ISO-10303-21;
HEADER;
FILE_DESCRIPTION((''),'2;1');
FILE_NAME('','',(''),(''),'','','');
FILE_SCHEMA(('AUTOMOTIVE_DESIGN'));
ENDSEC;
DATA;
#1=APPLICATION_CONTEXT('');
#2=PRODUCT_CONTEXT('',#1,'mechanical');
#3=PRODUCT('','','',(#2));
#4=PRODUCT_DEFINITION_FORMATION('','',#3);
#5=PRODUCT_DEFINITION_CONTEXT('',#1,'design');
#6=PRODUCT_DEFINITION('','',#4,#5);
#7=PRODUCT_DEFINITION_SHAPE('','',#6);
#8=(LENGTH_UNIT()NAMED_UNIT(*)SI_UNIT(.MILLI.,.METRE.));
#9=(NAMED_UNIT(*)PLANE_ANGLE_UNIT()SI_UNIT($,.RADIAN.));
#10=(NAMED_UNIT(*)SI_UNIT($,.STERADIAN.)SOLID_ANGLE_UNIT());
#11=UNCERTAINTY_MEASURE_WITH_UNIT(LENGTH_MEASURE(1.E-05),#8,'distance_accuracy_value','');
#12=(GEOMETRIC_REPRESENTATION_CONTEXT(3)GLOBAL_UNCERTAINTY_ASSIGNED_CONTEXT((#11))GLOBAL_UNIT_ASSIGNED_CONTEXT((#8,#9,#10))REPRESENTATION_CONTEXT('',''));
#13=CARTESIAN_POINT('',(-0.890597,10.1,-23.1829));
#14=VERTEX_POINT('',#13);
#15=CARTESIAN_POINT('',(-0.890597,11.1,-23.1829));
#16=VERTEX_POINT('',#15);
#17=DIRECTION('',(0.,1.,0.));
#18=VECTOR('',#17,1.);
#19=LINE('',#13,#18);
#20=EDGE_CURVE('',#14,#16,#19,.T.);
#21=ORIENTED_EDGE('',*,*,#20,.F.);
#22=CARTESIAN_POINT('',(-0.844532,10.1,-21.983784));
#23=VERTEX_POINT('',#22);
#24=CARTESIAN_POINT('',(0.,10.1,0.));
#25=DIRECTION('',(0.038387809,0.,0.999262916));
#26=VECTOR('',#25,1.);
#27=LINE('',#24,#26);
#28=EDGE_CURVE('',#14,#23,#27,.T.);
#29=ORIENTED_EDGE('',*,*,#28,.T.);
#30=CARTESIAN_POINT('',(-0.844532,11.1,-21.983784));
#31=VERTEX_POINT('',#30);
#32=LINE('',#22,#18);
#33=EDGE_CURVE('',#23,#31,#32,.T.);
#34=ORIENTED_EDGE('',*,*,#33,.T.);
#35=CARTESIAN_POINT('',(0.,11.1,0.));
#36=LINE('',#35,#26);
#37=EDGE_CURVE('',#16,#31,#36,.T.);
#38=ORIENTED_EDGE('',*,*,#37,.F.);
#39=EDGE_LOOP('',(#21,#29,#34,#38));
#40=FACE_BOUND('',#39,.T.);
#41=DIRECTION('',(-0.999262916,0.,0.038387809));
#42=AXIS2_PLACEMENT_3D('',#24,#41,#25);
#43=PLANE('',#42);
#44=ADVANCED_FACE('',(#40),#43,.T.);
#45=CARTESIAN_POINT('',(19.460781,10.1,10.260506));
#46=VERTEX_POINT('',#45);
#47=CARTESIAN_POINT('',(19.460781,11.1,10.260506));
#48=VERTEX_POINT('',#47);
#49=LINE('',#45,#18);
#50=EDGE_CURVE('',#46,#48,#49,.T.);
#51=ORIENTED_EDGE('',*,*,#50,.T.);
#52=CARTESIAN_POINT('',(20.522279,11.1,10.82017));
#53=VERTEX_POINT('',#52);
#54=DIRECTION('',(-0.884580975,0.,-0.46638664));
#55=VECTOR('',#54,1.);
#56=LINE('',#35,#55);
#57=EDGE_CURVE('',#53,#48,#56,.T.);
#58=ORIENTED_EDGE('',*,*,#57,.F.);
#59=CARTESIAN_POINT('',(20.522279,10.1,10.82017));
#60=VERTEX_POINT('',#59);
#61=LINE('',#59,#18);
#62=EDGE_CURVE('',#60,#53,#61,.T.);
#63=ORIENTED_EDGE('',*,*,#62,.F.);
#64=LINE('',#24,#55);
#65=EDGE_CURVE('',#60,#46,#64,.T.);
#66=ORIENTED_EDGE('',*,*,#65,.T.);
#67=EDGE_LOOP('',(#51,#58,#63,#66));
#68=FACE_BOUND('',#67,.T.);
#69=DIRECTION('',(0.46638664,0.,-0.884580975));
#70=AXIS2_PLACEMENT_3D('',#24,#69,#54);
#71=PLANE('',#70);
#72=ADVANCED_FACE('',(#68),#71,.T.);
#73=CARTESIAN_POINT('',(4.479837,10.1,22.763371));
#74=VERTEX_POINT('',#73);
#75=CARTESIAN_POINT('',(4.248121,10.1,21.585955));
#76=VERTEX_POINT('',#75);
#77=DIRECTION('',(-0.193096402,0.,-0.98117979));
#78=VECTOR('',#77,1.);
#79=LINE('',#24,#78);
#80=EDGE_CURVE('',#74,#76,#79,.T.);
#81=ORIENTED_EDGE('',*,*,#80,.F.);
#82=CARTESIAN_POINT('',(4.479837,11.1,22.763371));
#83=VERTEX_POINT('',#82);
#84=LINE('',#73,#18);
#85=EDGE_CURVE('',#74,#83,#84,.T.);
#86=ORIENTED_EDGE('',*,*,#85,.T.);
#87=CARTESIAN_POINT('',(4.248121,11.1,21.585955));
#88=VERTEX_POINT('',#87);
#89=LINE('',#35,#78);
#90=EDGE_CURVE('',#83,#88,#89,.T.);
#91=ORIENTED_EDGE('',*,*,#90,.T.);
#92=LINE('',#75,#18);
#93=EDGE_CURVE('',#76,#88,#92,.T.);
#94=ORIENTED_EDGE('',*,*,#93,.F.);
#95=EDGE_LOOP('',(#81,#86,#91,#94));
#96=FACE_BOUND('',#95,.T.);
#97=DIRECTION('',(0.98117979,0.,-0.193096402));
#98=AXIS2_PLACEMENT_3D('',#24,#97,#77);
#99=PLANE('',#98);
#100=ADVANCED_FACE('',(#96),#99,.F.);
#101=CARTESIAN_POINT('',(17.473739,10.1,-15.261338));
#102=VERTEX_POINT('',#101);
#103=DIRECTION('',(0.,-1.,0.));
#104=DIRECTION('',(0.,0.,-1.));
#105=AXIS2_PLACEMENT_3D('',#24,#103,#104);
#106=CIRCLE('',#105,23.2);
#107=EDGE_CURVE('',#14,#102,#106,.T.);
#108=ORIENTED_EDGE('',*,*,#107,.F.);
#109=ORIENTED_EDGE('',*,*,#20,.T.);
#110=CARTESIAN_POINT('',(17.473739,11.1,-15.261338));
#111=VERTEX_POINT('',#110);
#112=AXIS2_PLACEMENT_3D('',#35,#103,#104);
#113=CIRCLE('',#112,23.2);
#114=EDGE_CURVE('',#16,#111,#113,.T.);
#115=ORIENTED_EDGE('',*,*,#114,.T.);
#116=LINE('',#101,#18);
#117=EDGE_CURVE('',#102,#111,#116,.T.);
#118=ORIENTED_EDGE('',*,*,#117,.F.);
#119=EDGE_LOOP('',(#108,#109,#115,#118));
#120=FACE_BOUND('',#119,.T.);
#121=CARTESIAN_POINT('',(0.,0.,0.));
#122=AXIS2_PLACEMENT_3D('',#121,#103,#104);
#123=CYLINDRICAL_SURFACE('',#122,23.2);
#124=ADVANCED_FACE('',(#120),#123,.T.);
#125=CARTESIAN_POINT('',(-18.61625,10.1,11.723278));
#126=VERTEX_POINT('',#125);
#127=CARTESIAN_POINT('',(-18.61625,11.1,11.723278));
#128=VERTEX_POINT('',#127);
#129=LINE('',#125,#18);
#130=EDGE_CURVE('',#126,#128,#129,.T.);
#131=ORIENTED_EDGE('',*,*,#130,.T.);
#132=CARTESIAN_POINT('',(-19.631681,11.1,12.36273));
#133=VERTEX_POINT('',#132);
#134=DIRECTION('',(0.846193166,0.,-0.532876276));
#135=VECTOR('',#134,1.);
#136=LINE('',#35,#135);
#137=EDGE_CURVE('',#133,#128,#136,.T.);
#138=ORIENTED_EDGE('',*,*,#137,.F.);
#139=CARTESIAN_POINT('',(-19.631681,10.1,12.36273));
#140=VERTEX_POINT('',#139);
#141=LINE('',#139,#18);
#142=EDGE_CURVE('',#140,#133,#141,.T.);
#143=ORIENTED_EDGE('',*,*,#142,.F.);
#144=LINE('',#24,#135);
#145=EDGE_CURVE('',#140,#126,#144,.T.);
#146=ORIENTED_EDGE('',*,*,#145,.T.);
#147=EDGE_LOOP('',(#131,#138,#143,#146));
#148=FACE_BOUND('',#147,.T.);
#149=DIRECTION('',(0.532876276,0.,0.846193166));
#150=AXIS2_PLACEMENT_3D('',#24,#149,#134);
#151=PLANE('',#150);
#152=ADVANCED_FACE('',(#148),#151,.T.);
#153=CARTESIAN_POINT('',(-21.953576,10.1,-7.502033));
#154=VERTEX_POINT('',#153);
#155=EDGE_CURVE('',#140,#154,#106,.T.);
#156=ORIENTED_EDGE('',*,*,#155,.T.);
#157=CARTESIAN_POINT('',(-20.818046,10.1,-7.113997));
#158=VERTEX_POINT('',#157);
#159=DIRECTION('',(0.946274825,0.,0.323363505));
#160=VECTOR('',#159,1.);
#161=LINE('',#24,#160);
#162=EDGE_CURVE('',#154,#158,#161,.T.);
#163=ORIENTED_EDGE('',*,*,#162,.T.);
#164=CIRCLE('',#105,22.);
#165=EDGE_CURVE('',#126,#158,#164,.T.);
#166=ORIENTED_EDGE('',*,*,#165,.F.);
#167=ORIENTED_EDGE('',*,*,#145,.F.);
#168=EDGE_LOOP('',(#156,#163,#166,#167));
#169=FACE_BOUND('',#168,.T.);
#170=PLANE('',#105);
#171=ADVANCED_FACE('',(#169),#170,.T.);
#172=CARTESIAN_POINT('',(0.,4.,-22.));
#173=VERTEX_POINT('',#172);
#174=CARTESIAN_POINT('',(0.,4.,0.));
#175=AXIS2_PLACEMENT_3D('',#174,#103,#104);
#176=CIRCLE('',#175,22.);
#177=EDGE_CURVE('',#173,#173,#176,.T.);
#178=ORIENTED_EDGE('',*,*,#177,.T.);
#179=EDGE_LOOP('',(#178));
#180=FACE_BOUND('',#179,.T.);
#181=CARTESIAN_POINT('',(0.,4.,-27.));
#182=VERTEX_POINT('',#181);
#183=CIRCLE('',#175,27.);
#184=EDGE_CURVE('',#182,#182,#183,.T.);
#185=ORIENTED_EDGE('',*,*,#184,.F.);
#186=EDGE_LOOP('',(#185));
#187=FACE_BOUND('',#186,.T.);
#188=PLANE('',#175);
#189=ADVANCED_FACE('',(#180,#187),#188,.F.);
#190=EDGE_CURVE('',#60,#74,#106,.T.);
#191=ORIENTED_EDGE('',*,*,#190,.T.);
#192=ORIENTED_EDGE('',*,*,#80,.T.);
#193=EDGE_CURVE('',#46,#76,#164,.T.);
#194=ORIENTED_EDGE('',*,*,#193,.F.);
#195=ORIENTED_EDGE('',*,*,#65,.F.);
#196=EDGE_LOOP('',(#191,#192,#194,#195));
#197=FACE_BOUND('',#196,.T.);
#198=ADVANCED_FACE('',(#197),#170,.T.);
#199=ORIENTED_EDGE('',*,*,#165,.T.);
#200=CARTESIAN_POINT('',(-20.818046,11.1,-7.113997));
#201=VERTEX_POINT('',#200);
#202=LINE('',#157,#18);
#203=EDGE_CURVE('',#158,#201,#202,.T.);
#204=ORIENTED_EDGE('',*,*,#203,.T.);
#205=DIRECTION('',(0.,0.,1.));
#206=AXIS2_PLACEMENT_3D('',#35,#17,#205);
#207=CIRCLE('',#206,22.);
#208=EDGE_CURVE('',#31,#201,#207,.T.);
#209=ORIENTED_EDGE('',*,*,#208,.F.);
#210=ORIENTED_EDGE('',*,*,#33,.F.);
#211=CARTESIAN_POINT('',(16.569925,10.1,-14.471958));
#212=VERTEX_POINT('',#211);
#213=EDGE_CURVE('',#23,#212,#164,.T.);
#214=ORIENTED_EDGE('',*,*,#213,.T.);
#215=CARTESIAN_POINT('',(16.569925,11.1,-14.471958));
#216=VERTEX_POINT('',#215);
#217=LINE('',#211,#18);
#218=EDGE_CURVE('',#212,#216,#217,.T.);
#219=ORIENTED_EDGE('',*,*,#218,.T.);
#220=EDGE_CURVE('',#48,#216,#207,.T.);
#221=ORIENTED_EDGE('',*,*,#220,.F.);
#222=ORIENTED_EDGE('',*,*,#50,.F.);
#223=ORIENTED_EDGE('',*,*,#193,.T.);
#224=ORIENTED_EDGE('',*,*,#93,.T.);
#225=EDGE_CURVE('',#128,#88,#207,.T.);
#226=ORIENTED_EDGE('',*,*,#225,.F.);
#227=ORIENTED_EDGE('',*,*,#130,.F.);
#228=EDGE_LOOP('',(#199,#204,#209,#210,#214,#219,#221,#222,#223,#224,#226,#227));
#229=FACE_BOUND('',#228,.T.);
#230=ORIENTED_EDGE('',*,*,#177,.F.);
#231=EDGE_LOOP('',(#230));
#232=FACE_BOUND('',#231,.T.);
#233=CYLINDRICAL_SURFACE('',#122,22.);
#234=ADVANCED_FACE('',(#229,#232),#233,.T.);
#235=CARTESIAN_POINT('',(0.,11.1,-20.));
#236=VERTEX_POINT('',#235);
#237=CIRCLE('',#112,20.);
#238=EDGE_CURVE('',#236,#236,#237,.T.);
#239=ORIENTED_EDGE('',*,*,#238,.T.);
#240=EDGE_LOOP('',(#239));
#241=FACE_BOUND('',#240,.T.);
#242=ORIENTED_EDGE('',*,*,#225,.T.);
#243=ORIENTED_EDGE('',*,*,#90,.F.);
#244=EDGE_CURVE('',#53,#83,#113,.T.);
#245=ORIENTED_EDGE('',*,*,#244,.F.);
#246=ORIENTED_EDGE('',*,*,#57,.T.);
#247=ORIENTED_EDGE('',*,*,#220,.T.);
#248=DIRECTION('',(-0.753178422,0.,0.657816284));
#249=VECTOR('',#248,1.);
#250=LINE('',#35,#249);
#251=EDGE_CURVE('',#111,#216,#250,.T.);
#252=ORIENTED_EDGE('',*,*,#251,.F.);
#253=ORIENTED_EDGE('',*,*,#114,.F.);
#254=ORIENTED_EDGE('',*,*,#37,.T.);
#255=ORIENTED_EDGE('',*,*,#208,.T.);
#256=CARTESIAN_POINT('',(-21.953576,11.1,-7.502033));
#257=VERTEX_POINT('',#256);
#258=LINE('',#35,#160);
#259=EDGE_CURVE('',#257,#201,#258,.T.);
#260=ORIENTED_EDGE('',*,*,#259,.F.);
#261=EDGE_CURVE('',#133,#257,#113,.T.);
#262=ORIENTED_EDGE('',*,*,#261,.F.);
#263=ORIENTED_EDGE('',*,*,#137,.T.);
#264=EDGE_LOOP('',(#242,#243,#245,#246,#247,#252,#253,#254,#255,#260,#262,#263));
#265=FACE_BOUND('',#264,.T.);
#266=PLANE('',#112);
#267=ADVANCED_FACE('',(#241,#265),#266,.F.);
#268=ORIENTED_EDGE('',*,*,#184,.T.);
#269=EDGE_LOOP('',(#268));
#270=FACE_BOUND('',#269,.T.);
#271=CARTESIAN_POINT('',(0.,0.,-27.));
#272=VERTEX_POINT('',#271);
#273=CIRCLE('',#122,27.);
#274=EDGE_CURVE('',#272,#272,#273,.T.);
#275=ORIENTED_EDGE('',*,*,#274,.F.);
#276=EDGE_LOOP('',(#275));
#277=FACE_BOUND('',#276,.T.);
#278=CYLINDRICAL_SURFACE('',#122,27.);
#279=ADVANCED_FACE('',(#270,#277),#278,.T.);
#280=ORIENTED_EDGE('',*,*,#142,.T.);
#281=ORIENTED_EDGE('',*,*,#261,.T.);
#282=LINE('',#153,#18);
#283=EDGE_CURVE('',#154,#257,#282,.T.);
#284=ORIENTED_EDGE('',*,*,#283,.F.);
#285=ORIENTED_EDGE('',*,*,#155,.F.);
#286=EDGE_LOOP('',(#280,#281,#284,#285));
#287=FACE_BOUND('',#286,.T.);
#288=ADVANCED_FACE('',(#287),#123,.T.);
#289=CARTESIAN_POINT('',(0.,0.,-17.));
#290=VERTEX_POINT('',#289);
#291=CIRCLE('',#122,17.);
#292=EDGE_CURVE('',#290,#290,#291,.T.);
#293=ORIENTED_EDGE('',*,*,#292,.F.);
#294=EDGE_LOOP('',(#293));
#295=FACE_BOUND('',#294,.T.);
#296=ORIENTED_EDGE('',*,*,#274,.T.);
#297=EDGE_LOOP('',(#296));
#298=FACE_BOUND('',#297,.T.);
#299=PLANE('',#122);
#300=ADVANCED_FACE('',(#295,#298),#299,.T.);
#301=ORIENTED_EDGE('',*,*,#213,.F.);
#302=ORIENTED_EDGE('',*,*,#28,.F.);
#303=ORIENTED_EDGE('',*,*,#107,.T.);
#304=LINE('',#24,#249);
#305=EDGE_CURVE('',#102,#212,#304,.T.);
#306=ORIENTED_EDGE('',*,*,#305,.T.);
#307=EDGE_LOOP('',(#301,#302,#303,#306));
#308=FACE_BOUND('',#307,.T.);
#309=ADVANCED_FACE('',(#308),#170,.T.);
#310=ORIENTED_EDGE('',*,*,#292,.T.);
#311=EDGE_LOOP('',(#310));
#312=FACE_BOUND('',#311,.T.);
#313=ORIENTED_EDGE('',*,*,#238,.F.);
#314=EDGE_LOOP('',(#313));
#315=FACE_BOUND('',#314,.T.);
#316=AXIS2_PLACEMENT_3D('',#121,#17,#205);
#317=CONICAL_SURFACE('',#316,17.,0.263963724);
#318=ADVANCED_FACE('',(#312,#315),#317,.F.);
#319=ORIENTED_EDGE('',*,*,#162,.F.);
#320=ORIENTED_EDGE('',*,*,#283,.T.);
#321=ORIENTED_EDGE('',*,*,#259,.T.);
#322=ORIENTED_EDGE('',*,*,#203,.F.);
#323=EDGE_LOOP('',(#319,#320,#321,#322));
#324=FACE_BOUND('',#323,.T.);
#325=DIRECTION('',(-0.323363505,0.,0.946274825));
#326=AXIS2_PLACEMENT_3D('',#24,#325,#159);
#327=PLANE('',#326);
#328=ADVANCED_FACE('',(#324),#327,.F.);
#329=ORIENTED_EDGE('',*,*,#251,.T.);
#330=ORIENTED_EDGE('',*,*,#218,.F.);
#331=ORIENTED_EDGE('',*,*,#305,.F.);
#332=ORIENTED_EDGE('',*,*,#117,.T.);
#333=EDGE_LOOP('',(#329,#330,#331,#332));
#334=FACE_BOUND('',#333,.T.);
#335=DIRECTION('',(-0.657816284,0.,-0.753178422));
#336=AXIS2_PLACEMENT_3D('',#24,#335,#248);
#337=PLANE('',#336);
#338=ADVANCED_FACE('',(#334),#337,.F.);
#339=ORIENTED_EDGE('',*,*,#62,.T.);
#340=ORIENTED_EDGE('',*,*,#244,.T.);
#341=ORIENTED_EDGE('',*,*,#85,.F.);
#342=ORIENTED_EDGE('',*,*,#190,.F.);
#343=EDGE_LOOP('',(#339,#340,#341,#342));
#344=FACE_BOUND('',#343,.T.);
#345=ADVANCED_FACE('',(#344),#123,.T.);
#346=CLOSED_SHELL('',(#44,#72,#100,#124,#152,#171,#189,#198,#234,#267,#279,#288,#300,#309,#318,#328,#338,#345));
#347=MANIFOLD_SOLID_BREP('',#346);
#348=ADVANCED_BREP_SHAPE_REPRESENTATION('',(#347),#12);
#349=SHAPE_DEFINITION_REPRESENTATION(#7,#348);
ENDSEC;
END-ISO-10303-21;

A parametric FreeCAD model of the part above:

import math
import FreeCAD as App
import Part
import Sketcher
from FreeCAD import Vector
Q = App.Units.Quantity


def add_polygon(sketch, points):
    """Adds a closed chain of lines whose ends are joined by coincident constraints."""
    first, n = sketch.GeometryCount, len(points)
    for a, b in zip(points, points[1:] + points[:1]):
        sketch.addGeometry(Part.LineSegment(App.Vector(*a, 0), App.Vector(*b, 0)), False)
    for i in range(n):
        sketch.addConstraint(Sketcher.Constraint("Coincident", first + i, 2, first + (i + 1) % n, 1))

doc = App.newDocument("Part")
body = doc.addObject("PartDesign::Body", "Body")

# Sketch on XY plane
sketch1 = body.newObject("Sketcher::SketchObject", "Sketch")
sketch1.AttachmentSupport = (doc.getObject("XY_Plane"), [""])
sketch1.MapMode = "FlatFace"
add_polygon(sketch1, [(27, 0), (27, 4), (22, 4), (22, 10.1), (23.2, 10.1), (23.2, 11.1), (20, 11.1), (17, 0)])  # lines 0-7
sketch1.addConstraint(Sketcher.Constraint("Vertical", 0))
sketch1.addConstraint(Sketcher.Constraint("Horizontal", 1))
sketch1.addConstraint(Sketcher.Constraint("Vertical", 2))
sketch1.addConstraint(Sketcher.Constraint("Horizontal", 3))
sketch1.addConstraint(Sketcher.Constraint("Vertical", 4))
sketch1.addConstraint(Sketcher.Constraint("Horizontal", 5))
sketch1.addConstraint(Sketcher.Constraint("Horizontal", 7))
sketch1.addConstraint(Sketcher.Constraint("PointOnObject", 6, 2, -1))
sketch1.addConstraint(Sketcher.Constraint("DistanceX", 1, 2, 1, 1, 5.0))
sketch1.addConstraint(Sketcher.Constraint("DistanceX", 7, 1, 7, 2, 10.0))
sketch1.addConstraint(Sketcher.Constraint("DistanceY", 0, 1, 0, 2, 4.0))
sketch1.addConstraint(Sketcher.Constraint("DistanceY", 4, 1, 4, 2, 1.0))
sketch1.addConstraint(Sketcher.Constraint("DistanceX", 3, 1, 3, 2, 1.2))
sketch1.addConstraint(Sketcher.Constraint("DistanceX", 5, 2, 5, 1, 3.2))
sketch1.addConstraint(Sketcher.Constraint("DistanceY", 2, 1, 2, 2, 6.1))
sketch1.addConstraint(Sketcher.Constraint("DistanceX", -1, 1, 0, 2, 27.0))
revolution = body.newObject("PartDesign::Revolution", "Revolution")
revolution.Profile = sketch1
revolution.ReferenceAxis = (sketch1, ["V_Axis"])
revolution.Angle = 360

# Sketch on XZ plane
sketch2 = body.newObject("Sketcher::SketchObject", "Sketch001")
sketch2.AttachmentSupport = (doc.getObject("XZ_Plane"), [""])
sketch2.MapMode = "FlatFace"
sketch2.AttachmentOffset = App.Placement(Vector(0, 0, -11.1), App.Rotation())
sketch2.addGeometry(Part.ArcOfCircle(Part.Circle(Vector(0, 0, 0), Vector(0, 0, 1), 23.2), math.radians(-41), math.radians(0)), False)
sketch2.addGeometry(Part.LineSegment(Vector(17.5, -15.3, 0), Vector(16.6, -14.5, 0)), False)
sketch2.addGeometry(Part.ArcOfCircle(Part.Circle(Vector(0, 0, 0), Vector(0, 0, 1), 22), math.radians(-41), math.radians(0)), False)
sketch2.addGeometry(Part.ArcOfCircle(Part.Circle(Vector(0, 0, 0), Vector(0, 0, 1), 22), math.radians(0), math.radians(28)), False)
sketch2.addGeometry(Part.LineSegment(Vector(19.5, 10.3, 0), Vector(20.5, 10.8, 0)), False)
sketch2.addGeometry(Part.ArcOfCircle(Part.Circle(Vector(0, 0, 0), Vector(0, 0, 1), 23.2), math.radians(0), math.radians(28)), False)
sketch2.addGeometry(Part.LineSegment(Vector(-18.6, 11.7, 0), Vector(-19.6, 12.4, 0)), False)
sketch2.addGeometry(Part.ArcOfCircle(Part.Circle(Vector(0, 0, 0), Vector(0, 0, 1), 23.2), math.radians(79), math.radians(148)), False)
sketch2.addGeometry(Part.LineSegment(Vector(4.5, 22.8, 0), Vector(4.2, 21.6, 0)), False)
sketch2.addGeometry(Part.ArcOfCircle(Part.Circle(Vector(0, 0, 0), Vector(0, 0, 1), 22), math.radians(79), math.radians(148)), False)
sketch2.addGeometry(Part.LineSegment(Vector(-0.8, -22, 0), Vector(-0.9, -23.2, 0)), False)
sketch2.addGeometry(Part.ArcOfCircle(Part.Circle(Vector(0, 0, 0), Vector(0, 0, 1), 23.2), math.radians(-161), math.radians(-92)), False)
sketch2.addGeometry(Part.LineSegment(Vector(-22, -7.5, 0), Vector(-20.8, -7.1, 0)), False)
sketch2.addGeometry(Part.ArcOfCircle(Part.Circle(Vector(0, 0, 0), Vector(0, 0, 1), 22), math.radians(-161), math.radians(-92)), False)
sketch2.addConstraint(Sketcher.Constraint("Coincident", 0, 1, 1, 1))
sketch2.addConstraint(Sketcher.Constraint("Coincident", 1, 2, 2, 1))
sketch2.addConstraint(Sketcher.Constraint("Tangent", 2, 2, 3, 1))
sketch2.addConstraint(Sketcher.Constraint("Coincident", 3, 2, 4, 1))
sketch2.addConstraint(Sketcher.Constraint("Coincident", 4, 2, 5, 2))
sketch2.addConstraint(Sketcher.Constraint("Tangent", 5, 1, 0, 2))
sketch2.addConstraint(Sketcher.Constraint("Coincident", 6, 2, 7, 2))
sketch2.addConstraint(Sketcher.Constraint("Coincident", 7, 1, 8, 1))
sketch2.addConstraint(Sketcher.Constraint("Coincident", 8, 2, 9, 1))
sketch2.addConstraint(Sketcher.Constraint("Coincident", 9, 2, 6, 1))
sketch2.addConstraint(Sketcher.Constraint("Coincident", 10, 2, 11, 2))
sketch2.addConstraint(Sketcher.Constraint("Coincident", 11, 1, 12, 1))
sketch2.addConstraint(Sketcher.Constraint("Coincident", 12, 2, 13, 1))
sketch2.addConstraint(Sketcher.Constraint("Coincident", 13, 2, 10, 1))
sketch2.addConstraint(Sketcher.Constraint("Coincident", 0, 3, -1, 1))
sketch2.addConstraint(Sketcher.Constraint("Coincident", 2, 3, -1, 1))
sketch2.addConstraint(Sketcher.Constraint("Coincident", 7, 3, -1, 1))
sketch2.addConstraint(Sketcher.Constraint("Coincident", 9, 3, -1, 1))
sketch2.addConstraint(Sketcher.Constraint("Coincident", 11, 3, -1, 1))
sketch2.addConstraint(Sketcher.Constraint("Coincident", 13, 3, -1, 1))
sketch2.addConstraint(Sketcher.Constraint("Equal", 2, 3))
sketch2.addConstraint(Sketcher.Constraint("Equal", 0, 5))
sketch2.addConstraint(Sketcher.Constraint("Equal", 5, 7))
sketch2.addConstraint(Sketcher.Constraint("Equal", 3, 9))
sketch2.addConstraint(Sketcher.Constraint("Equal", 7, 11))
sketch2.addConstraint(Sketcher.Constraint("Equal", 9, 13))
sketch2.addConstraint(Sketcher.Constraint("PointOnObject", 2, 2, -1))
sketch2.addConstraint(Sketcher.Constraint("PointOnObject", 5, 1, -1))
sketch2.addConstraint(Sketcher.Constraint("Radius", 2, 22.0))
sketch2.addConstraint(Sketcher.Constraint("Radius", 0, 23.2))
sketch2.addConstraint(Sketcher.Constraint("Angle", 4, Q("27.8 deg")))
sketch2.addConstraint(Sketcher.Constraint("Angle", 6, Q("147.8 deg")))
sketch2.addConstraint(Sketcher.Constraint("Angle", 10, Q("-92.2 deg")))
sketch2.addConstraint(Sketcher.Constraint("DistanceY", 10, 2, -1, 1, 23.1829))
sketch2.addConstraint(Sketcher.Constraint("DistanceY", 4, 2, 7, 1, 11.943201))
sketch2.addConstraint(Sketcher.Constraint("DistanceX", -1, 1, 0, 1, 17.473739))
sketch2.addConstraint(Sketcher.Constraint("DistanceY", 1, 2, -1, 1, 14.471958))
sketch2.addConstraint(Sketcher.Constraint("DistanceX", -1, 1, 3, 2, 19.460781))
sketch2.addConstraint(Sketcher.Constraint("DistanceX", 6, 2, -1, 1, 19.631681))
sketch2.addConstraint(Sketcher.Constraint("DistanceX", -1, 1, 8, 2, 4.248121))
sketch2.addConstraint(Sketcher.Constraint("DistanceY", 11, 1, 9, 2, 19.225311))
sketch2.addConstraint(Sketcher.Constraint("DistanceX", 11, 1, 12, 2, 1.13553))
pocket1 = body.newObject("PartDesign::Pocket", "Pocket")
pocket1.Profile = sketch2
pocket1.Length = 1
pocket1.Reversed = True

doc.recompute()
